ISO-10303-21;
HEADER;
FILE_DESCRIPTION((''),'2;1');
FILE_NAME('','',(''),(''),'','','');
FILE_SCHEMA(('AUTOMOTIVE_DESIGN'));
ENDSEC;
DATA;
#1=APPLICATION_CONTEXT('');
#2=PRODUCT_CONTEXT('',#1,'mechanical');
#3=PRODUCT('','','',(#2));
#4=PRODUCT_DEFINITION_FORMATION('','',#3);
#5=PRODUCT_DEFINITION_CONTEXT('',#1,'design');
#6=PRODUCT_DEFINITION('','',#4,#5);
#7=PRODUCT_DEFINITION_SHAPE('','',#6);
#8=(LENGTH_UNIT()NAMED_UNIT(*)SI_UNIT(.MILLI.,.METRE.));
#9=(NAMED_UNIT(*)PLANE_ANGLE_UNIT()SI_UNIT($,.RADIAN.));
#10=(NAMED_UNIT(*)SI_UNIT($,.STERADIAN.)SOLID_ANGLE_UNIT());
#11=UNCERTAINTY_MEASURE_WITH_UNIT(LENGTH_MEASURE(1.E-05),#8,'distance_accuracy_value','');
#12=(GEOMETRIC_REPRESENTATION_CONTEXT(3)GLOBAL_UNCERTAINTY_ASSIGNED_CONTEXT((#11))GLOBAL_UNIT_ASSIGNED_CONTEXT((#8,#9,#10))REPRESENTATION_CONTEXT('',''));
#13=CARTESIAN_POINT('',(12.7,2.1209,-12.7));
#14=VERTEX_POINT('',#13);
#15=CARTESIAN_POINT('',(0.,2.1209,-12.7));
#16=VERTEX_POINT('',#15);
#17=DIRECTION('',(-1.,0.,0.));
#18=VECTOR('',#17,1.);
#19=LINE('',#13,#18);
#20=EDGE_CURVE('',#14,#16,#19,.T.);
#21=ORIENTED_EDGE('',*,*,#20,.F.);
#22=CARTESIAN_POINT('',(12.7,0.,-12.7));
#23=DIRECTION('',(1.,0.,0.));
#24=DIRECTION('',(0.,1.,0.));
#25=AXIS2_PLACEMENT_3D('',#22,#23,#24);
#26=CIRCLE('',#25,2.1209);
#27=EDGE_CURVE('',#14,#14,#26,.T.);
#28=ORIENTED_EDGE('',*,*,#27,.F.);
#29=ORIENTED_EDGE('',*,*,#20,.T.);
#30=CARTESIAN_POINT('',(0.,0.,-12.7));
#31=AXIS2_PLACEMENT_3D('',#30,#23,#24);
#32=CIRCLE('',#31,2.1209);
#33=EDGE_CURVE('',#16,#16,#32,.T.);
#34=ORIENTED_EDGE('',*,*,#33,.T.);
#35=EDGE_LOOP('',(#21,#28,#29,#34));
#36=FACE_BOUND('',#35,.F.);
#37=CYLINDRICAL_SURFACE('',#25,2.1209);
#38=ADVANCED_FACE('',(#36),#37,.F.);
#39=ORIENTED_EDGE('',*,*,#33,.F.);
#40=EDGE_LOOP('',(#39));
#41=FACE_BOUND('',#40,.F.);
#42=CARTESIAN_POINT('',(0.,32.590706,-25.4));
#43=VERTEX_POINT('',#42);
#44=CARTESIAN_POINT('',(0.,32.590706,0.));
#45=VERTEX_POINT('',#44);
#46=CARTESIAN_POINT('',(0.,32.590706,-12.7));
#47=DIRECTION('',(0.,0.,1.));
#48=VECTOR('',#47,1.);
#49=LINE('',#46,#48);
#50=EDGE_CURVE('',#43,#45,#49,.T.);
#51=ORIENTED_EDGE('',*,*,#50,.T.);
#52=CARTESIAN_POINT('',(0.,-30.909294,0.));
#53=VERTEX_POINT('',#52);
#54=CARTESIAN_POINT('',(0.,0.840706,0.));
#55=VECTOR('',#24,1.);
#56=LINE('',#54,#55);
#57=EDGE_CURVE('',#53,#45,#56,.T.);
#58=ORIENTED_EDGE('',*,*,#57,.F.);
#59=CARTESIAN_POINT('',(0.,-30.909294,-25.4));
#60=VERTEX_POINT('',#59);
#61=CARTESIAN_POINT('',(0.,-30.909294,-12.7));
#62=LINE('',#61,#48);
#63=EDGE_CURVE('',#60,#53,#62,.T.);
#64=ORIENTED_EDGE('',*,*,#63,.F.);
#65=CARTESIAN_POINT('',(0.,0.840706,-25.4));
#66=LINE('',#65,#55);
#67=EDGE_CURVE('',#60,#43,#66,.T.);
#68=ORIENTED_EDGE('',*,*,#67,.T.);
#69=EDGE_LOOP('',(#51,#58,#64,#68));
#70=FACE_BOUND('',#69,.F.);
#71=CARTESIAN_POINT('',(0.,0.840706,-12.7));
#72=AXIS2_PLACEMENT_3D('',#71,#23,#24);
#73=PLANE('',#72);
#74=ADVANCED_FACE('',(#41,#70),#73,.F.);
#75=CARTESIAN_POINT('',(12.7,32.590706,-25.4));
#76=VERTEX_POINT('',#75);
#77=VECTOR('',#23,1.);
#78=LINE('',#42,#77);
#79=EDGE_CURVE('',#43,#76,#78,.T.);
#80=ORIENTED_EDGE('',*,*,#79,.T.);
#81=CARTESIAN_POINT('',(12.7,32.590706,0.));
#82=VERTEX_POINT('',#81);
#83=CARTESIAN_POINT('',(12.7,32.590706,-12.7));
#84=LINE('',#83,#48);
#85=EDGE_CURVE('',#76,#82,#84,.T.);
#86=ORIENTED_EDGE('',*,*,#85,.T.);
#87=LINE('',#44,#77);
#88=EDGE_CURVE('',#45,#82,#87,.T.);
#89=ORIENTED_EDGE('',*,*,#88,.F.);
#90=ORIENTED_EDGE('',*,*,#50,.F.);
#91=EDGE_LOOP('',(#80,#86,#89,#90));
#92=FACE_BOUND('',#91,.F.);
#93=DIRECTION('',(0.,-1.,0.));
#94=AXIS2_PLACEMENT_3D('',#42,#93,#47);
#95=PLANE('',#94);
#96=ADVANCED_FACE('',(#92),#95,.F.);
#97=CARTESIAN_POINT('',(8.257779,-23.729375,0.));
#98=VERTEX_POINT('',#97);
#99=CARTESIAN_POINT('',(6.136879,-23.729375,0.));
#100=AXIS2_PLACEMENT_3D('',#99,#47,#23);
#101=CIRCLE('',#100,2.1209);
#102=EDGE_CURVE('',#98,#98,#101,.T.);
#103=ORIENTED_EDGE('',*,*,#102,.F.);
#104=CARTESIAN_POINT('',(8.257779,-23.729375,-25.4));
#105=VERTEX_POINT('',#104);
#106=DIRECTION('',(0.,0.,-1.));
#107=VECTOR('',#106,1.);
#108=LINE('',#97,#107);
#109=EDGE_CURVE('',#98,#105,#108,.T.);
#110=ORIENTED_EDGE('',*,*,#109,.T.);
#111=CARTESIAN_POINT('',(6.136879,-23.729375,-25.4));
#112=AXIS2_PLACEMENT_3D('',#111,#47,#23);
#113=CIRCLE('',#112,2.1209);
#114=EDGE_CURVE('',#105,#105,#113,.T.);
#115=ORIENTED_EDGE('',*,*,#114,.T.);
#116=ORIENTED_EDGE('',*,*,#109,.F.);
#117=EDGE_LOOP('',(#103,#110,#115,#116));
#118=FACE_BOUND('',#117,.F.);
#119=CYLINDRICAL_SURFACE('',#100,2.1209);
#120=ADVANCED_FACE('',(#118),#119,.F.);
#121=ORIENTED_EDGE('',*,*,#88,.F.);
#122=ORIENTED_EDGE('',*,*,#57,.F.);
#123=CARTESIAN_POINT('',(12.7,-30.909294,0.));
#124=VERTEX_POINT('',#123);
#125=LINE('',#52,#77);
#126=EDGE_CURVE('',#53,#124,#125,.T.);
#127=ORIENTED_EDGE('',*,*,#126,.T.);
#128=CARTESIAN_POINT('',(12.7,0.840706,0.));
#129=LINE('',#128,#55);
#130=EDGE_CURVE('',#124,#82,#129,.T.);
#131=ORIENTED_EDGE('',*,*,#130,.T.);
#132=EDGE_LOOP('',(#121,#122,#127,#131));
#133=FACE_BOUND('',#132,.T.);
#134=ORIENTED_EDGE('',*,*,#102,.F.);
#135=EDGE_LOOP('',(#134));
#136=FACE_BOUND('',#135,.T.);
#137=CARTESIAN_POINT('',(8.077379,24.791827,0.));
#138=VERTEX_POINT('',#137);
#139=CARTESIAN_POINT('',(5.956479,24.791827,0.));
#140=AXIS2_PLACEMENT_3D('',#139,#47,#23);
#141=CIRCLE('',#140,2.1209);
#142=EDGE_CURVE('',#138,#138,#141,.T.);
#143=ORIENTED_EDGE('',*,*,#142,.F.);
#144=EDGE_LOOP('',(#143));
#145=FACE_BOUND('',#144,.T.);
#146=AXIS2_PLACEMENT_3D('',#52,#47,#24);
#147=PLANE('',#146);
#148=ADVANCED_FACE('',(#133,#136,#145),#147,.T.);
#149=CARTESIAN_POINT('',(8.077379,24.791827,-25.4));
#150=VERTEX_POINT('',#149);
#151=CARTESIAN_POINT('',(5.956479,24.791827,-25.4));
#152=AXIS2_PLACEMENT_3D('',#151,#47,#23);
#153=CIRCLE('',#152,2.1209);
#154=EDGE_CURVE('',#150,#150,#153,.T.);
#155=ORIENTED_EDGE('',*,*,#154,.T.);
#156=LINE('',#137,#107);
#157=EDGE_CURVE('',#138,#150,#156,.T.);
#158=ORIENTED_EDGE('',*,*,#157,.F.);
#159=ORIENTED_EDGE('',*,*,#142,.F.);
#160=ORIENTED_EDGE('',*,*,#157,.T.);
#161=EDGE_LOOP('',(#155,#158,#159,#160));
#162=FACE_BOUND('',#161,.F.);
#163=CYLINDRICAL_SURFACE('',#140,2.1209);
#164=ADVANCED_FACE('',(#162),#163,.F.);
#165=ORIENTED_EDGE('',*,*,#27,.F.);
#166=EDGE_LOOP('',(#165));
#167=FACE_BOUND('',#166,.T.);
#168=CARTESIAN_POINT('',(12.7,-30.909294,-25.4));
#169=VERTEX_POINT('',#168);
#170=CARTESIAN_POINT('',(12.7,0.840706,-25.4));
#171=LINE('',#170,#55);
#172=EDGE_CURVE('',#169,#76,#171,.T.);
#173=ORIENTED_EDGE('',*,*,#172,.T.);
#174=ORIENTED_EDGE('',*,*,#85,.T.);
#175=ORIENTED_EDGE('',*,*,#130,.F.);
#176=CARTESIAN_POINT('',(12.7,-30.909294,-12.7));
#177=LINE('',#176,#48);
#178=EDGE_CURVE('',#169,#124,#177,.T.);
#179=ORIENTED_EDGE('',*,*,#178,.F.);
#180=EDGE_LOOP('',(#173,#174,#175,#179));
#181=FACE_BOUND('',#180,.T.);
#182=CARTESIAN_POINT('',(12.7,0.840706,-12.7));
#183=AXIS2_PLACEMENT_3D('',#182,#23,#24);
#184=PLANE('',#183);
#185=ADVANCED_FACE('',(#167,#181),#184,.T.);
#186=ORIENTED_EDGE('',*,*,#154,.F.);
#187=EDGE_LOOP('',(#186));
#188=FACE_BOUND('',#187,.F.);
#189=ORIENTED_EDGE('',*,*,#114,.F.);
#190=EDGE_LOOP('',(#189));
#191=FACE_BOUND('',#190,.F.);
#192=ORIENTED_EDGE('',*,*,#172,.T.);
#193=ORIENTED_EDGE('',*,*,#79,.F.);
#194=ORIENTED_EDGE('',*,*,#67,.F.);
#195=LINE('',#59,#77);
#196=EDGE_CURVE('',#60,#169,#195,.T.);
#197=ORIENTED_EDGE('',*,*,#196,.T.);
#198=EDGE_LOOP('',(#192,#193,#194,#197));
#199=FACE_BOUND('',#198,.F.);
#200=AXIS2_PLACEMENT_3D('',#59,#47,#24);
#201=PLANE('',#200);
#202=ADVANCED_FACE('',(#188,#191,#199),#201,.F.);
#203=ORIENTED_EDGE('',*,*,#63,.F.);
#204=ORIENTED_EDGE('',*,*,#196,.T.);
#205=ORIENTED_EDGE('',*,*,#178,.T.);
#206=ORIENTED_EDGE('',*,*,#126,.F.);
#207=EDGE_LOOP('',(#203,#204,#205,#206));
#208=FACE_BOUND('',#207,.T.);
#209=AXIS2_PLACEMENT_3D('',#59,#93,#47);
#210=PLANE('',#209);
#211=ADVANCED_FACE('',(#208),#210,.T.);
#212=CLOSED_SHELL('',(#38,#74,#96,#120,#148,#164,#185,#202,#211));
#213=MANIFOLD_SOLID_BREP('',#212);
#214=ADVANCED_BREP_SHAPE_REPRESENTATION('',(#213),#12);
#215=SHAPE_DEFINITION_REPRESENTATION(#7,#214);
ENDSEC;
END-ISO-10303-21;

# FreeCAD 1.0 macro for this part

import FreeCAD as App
import Part
import Sketcher
Q = App.Units.Quantity


def add_polygon(sketch, points):
    """Adds a closed chain of lines whose ends are joined by coincident constraints."""
    first, n = sketch.GeometryCount, len(points)
    for a, b in zip(points, points[1:] + points[:1]):
        sketch.addGeometry(Part.LineSegment(App.Vector(*a, 0), App.Vector(*b, 0)), False)
    for i in range(n):
        sketch.addConstraint(Sketcher.Constraint("Coincident", first + i, 2, first + (i + 1) % n, 1))

doc = App.newDocument("Part")
params = doc.addObject("Spreadsheet::Sheet", "Params")
for row, (alias, value) in enumerate([
    ("sketch1_height", "1 in"),
    ("sketch1_width", "2.5 in"),
    ("pad1_length", "0.5 in"),
    ("sketch2_diameter", "0.167 in"),
    ("pocket1_length", "1 in"),
    ("sketch3_diameter", "0.167 in"),
    ("pocket2_length", "1 in"),
    ("sketch4_diameter", "0.167 in"),
    ("pocket3_length", "1 in"),
], start=1):
    params.set(f"A{row}", alias)
    params.set(f"B{row}", "=" + value)
    params.setAlias(f"B{row}", alias)

body = doc.addObject("PartDesign::Body", "Body")

# Sketch on YZ plane
sketch1 = body.newObject("Sketcher::SketchObject", "Sketch")
sketch1.AttachmentSupport = (doc.getObject("YZ_Plane"), [""])
sketch1.MapMode = "FlatFace"
add_polygon(sketch1, [(-31, 0), (-31, -25), (33, -25), (33, 0)])  # lines 0-3
sketch1.addConstraint(Sketcher.Constraint("Vertical", 0))
sketch1.addConstraint(Sketcher.Constraint("Horizontal", 1))
sketch1.addConstraint(Sketcher.Constraint("Vertical", 2))
sketch1.addConstraint(Sketcher.Constraint("Horizontal", 3))
sketch1.addConstraint(Sketcher.Constraint("PointOnObject", 2, 2, -1))
sketch1.addConstraint(Sketcher.Constraint("DistanceY", 0, 2, 0, 1, Q("1 in")))
sketch1.addConstraint(Sketcher.Constraint("DistanceX", 1, 1, 1, 2, Q("2.5 in")))
sketch1.addConstraint(Sketcher.Constraint("DistanceX", 0, 2, -1, 1, 30.909294))
sketch1.setExpression("Constraints[9]", "Params.sketch1_height")
sketch1.setExpression("Constraints[10]", "Params.sketch1_width")
pad1 = body.newObject("PartDesign::Pad", "Pad")
pad1.Profile = sketch1
pad1.setExpression("Length", "Params.pad1_length")

# Sketch on XY plane
sketch2 = body.newObject("Sketcher::SketchObject", "Sketch001")
sketch2.AttachmentSupport = (doc.getObject("XY_Plane"), [""])
sketch2.MapMode = "FlatFace"
sketch2.addGeometry(Part.Circle(App.Vector(6, 24.8, 0), App.Vector(0, 0, 1), 2.1), False)
sketch2.addConstraint(Sketcher.Constraint("Diameter", 0, Q("0.167 in")))
sketch2.addConstraint(Sketcher.Constraint("DistanceX", -1, 1, 0, 3, 5.956479))
sketch2.addConstraint(Sketcher.Constraint("DistanceY", -1, 1, 0, 3, 24.791827))
sketch2.setExpression("Constraints[0]", "Params.sketch2_diameter")
pocket1 = body.newObject("PartDesign::Pocket", "Pocket")
pocket1.Profile = sketch2
pocket1.setExpression("Length", "Params.pocket1_length")

# Sketch on XY plane
sketch3 = body.newObject("Sketcher::SketchObject", "Sketch002")
sketch3.AttachmentSupport = (doc.getObject("XY_Plane"), [""])
sketch3.MapMode = "FlatFace"
sketch3.addGeometry(Part.Circle(App.Vector(6.1, -23.7, 0), App.Vector(0, 0, 1), 2.1), False)
sketch3.addConstraint(Sketcher.Constraint("Diameter", 0, Q("0.167 in")))
sketch3.addConstraint(Sketcher.Constraint("DistanceX", -1, 1, 0, 3, 6.136879))
sketch3.addConstraint(Sketcher.Constraint("DistanceY", 0, 3, -1, 1, 23.729375))
sketch3.setExpression("Constraints[0]", "Params.sketch3_diameter")
pocket2 = body.newObject("PartDesign::Pocket", "Pocket001")
pocket2.Profile = sketch3
pocket2.setExpression("Length", "Params.pocket2_length")

# Sketch on YZ plane
sketch4 = body.newObject("Sketcher::SketchObject", "Sketch003")
sketch4.AttachmentSupport = (doc.getObject("YZ_Plane"), [""])
sketch4.MapMode = "FlatFace"
sketch4.AttachmentOffset = App.Placement(App.Vector(0, 0, 0.5 * 25.4), App.Rotation())
sketch4.addGeometry(Part.Circle(App.Vector(0, -12.7, 0), App.Vector(0, 0, 1), 2.1), False)
sketch4.addConstraint(Sketcher.Constraint("PointOnObject", 0, 3, -2))
sketch4.addConstraint(Sketcher.Constraint("Diameter", 0, Q("0.167 in")))
sketch4.addConstraint(Sketcher.Constraint("DistanceY", 0, 3, -1, 1, Q("0.5 in")))
sketch4.setExpression("Constraints[1]", "Params.sketch4_diameter")
pocket3 = body.newObject("PartDesign::Pocket", "Pocket002")
pocket3.Profile = sketch4
pocket3.setExpression("Length", "Params.pocket3_length")

doc.recompute()
